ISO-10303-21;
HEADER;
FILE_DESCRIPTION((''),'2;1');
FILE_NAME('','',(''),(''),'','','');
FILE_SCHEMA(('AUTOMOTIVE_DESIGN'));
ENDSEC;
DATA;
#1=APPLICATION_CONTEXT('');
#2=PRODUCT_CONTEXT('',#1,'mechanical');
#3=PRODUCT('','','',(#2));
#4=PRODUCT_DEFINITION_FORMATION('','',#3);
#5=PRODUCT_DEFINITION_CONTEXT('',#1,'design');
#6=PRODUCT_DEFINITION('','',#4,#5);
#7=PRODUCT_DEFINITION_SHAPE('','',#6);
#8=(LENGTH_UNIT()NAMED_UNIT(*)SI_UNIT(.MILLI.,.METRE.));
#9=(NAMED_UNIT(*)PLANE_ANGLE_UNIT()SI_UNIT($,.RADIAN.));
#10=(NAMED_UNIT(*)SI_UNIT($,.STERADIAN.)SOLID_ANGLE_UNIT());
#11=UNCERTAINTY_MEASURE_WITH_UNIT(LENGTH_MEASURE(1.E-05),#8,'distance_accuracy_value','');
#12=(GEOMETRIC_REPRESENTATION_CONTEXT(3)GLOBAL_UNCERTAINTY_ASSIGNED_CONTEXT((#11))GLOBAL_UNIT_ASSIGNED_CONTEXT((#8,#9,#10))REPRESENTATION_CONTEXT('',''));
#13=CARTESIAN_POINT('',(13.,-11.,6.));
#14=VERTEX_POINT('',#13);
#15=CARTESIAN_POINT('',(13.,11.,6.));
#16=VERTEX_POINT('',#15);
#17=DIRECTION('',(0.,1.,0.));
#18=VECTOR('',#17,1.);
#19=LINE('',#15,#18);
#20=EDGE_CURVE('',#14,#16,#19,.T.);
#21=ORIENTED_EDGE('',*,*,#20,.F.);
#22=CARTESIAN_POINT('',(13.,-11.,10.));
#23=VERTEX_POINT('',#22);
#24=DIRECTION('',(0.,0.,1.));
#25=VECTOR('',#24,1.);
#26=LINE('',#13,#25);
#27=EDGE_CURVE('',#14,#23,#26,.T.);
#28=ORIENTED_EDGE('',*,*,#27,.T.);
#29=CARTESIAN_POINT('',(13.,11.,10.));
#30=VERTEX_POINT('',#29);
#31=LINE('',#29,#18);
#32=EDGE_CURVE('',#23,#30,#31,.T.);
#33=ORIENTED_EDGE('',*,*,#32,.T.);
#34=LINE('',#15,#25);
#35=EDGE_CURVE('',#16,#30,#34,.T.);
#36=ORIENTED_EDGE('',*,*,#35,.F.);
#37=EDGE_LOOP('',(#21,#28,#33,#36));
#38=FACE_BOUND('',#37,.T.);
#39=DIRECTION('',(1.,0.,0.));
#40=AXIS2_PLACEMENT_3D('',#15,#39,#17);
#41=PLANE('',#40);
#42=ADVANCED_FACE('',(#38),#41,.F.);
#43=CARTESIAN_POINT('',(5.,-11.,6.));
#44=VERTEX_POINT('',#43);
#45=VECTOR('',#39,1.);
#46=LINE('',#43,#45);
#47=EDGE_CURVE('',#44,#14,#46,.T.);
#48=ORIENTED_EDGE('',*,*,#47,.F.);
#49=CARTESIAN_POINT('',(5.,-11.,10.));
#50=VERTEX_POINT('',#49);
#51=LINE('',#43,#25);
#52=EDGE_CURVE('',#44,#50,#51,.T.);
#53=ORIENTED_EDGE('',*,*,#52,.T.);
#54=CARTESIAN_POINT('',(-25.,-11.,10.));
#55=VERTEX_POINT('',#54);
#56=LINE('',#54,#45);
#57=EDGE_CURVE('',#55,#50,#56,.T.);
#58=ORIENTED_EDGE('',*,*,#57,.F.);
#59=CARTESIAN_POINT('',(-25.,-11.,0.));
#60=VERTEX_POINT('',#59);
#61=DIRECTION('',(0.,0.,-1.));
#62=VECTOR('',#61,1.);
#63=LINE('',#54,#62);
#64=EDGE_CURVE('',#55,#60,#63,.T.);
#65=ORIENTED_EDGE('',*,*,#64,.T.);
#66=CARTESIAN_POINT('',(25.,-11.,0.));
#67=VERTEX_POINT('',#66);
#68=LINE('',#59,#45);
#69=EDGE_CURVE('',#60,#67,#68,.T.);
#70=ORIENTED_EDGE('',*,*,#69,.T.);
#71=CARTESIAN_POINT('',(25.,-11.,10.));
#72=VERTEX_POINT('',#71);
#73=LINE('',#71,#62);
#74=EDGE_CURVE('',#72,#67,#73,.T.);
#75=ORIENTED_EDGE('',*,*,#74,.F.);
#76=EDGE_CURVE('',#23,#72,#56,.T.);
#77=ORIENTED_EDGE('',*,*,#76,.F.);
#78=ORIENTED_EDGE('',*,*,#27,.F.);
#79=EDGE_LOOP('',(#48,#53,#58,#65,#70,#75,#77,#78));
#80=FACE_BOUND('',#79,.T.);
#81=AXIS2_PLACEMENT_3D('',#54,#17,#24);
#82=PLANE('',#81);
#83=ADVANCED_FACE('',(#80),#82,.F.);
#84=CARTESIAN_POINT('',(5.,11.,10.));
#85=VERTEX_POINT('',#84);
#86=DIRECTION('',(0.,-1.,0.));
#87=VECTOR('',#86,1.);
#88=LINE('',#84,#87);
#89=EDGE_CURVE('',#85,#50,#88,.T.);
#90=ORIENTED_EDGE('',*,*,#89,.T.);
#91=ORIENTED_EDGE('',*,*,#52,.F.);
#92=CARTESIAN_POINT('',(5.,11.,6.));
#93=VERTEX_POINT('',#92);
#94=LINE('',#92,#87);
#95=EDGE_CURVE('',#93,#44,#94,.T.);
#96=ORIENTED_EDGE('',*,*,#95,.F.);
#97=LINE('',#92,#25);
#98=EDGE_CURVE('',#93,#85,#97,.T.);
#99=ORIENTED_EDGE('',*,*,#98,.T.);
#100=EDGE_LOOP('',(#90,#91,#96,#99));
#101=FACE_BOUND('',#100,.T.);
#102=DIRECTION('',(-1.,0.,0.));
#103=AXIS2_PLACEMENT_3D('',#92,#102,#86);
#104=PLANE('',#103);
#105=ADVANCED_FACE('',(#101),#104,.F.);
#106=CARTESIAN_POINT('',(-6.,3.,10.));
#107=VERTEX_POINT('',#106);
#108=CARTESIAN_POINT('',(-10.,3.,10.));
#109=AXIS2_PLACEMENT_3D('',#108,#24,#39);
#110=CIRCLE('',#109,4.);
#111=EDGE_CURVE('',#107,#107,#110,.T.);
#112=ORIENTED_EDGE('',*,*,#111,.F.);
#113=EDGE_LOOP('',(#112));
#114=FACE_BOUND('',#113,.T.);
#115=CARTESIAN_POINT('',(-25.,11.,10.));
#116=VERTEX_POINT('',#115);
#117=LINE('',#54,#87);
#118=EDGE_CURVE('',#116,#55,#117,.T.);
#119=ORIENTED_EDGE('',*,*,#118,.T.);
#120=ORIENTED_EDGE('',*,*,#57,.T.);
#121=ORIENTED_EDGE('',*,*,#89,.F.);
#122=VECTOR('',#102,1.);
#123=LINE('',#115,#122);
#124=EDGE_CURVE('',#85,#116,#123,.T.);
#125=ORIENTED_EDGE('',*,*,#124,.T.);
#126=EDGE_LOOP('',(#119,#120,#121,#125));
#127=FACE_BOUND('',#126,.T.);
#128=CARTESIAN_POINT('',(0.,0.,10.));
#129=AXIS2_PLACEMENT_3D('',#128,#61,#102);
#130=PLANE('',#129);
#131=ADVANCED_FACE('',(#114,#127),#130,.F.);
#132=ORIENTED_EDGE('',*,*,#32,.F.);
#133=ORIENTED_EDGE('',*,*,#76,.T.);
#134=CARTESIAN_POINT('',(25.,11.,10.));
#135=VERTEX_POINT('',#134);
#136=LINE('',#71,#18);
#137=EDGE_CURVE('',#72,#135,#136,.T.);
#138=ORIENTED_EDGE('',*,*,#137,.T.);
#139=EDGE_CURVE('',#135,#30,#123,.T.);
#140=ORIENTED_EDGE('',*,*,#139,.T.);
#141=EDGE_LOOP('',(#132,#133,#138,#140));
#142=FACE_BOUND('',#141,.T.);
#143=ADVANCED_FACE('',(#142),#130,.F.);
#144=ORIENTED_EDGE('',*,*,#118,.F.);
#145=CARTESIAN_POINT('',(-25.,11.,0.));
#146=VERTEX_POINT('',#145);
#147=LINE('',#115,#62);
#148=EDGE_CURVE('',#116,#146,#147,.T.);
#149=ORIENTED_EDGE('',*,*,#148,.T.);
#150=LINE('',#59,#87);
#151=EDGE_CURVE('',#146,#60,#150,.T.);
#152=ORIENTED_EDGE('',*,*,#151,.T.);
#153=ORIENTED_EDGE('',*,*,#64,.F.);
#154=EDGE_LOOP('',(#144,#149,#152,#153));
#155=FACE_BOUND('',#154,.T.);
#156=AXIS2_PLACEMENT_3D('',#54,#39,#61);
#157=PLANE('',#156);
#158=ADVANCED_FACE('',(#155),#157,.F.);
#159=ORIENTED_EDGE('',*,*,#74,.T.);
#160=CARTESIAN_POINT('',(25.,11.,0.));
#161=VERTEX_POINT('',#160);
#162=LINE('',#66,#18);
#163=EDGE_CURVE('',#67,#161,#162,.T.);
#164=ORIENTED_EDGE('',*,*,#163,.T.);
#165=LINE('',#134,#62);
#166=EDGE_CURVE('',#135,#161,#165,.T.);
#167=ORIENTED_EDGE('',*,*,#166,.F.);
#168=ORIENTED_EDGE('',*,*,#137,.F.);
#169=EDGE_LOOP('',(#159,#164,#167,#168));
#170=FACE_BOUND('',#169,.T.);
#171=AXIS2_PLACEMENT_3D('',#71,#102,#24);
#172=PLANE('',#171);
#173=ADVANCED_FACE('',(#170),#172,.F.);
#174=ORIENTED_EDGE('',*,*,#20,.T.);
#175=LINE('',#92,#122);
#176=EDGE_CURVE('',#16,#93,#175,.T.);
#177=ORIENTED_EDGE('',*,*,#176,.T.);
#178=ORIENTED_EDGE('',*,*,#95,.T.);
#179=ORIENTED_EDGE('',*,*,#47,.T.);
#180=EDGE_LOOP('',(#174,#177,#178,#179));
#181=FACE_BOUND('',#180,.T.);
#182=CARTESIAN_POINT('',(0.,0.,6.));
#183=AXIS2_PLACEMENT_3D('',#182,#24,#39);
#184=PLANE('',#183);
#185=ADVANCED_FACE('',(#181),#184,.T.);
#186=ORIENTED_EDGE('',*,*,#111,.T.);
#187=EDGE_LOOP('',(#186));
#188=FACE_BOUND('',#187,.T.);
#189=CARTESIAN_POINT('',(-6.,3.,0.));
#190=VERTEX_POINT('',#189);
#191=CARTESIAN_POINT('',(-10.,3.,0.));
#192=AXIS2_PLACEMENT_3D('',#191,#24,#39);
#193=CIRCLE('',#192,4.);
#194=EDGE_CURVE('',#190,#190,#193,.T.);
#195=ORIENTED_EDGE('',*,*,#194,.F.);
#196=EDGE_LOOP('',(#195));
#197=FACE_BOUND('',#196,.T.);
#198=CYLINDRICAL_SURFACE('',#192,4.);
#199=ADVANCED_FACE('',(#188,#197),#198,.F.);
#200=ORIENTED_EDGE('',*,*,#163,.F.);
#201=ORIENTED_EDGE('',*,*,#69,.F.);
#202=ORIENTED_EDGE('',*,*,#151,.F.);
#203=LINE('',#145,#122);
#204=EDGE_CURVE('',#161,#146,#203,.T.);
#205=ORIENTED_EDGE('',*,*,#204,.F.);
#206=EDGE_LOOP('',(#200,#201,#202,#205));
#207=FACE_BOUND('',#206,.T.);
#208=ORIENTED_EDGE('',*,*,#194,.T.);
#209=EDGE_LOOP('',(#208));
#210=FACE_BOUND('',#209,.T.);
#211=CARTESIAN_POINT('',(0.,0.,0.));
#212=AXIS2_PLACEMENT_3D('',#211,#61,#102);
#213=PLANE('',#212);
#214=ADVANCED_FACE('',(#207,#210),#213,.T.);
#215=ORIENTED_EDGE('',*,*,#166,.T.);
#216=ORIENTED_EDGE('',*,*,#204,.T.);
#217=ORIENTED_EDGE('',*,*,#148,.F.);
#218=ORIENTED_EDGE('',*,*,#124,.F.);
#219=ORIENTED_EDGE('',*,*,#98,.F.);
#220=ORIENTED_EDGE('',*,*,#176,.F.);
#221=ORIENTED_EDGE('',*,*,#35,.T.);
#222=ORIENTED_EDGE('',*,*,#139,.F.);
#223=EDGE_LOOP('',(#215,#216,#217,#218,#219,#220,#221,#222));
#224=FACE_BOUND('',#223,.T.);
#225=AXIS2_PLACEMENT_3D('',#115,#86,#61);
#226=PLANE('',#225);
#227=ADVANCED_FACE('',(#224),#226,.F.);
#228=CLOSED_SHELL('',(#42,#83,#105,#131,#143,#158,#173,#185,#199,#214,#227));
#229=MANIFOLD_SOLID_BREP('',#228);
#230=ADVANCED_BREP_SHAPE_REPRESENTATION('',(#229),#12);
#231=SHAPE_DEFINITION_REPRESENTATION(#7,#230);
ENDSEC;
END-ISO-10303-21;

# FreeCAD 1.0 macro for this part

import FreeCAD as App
import Part
import Sketcher

V = App.Vector

doc = App.newDocument("Part")
params = doc.addObject("Spreadsheet::Sheet", "Params")
for row, (alias, value) in enumerate([
    ("sketch1_width", "50 mm"),
    ("sketch1_height", "22 mm"),
    ("pad1_length", "10 mm"),
    ("sketch2_diameter", "8 mm"),
    ("sketch3_width", "8 mm"),
    ("sketch3_height", "22 mm"),
    ("pocket2_length", "4 mm"),
], start=1):
    params.set(f"A{row}", alias)
    params.set(f"B{row}", "=" + value)
    params.setAlias(f"B{row}", alias)

body = doc.addObject("PartDesign::Body", "Body")

# Sketch on XY plane
sketch1 = body.newObject("Sketcher::SketchObject", "Sketch")
sketch1.AttachmentSupport = (doc.getObject("XY_Plane"), [""])
sketch1.MapMode = "FlatFace"
sketch1.addGeometry([
    Part.LineSegment(V(-25, 11, 0), V(-25, -11, 0)),
    Part.LineSegment(V(-25, -11, 0), V(25, -11, 0)),
    Part.LineSegment(V(25, -11, 0), V(25, 11, 0)),
    Part.LineSegment(V(25, 11, 0), V(-25, 11, 0)),
], False)
sketch1.addConstraint([
    Sketcher.Constraint("Coincident", 0, 2, 1, 1),
    Sketcher.Constraint("Coincident", 1, 2, 2, 1),
    Sketcher.Constraint("Coincident", 2, 2, 3, 1),
    Sketcher.Constraint("Coincident", 3, 2, 0, 1),
    Sketcher.Constraint("Vertical", 0),
    Sketcher.Constraint("Horizontal", 1),
    Sketcher.Constraint("Vertical", 2),
    Sketcher.Constraint("Horizontal", 3),
    Sketcher.Constraint("Symmetric", 0, 2, 2, 2, -1, 1),
    Sketcher.Constraint("DistanceX", 1, 1, 1, 2, 50.0),
    Sketcher.Constraint("DistanceY", 0, 2, 0, 1, 22.0),
])
sketch1.setExpression("Constraints[9]", "Params.sketch1_width")
sketch1.setExpression("Constraints[10]", "Params.sketch1_height")
pad1 = body.newObject("PartDesign::Pad", "Pad")
pad1.Profile = sketch1
pad1.setExpression("Length", "Params.pad1_length")

# Sketch on XY plane
sketch2 = body.newObject("Sketcher::SketchObject", "Sketch001")
sketch2.AttachmentSupport = (doc.getObject("XY_Plane"), [""])
sketch2.MapMode = "FlatFace"
sketch2.AttachmentOffset = App.Placement(V(0, 0, 10), App.Rotation())
sketch2.addGeometry(Part.Circle(V(-10, 3, 0), V(0, 0, 1), 4), False)
sketch2.addConstraint([
    Sketcher.Constraint("Diameter", 0, 8.0),
    Sketcher.Constraint("DistanceX", 0, 3, -1, 1, 10.0),
    Sketcher.Constraint("DistanceY", -1, 1, 0, 3, 3.0),
])
sketch2.setExpression("Constraints[0]", "Params.sketch2_diameter")
pocket1 = body.newObject("PartDesign::Pocket", "Pocket")
pocket1.Profile = sketch2
pocket1.Type = "ThroughAll"

# Sketch on XY plane
sketch3 = body.newObject("Sketcher::SketchObject", "Sketch002")
sketch3.AttachmentSupport = (doc.getObject("XY_Plane"), [""])
sketch3.MapMode = "FlatFace"
sketch3.AttachmentOffset = App.Placement(V(0, 0, 10), App.Rotation())
sketch3.addGeometry([
    Part.LineSegment(V(5, 11, 0), V(5, -11, 0)),
    Part.LineSegment(V(5, -11, 0), V(13, -11, 0)),
    Part.LineSegment(V(13, -11, 0), V(13, 11, 0)),
    Part.LineSegment(V(13, 11, 0), V(5, 11, 0)),
], False)
sketch3.addConstraint([
    Sketcher.Constraint("Coincident", 0, 2, 1, 1),
    Sketcher.Constraint("Coincident", 1, 2, 2, 1),
    Sketcher.Constraint("Coincident", 2, 2, 3, 1),
    Sketcher.Constraint("Coincident", 3, 2, 0, 1),
    Sketcher.Constraint("Vertical", 0),
    Sketcher.Constraint("Horizontal", 1),
    Sketcher.Constraint("Vertical", 2),
    Sketcher.Constraint("Horizontal", 3),
    Sketcher.Constraint("DistanceX", 1, 1, 1, 2, 8.0),
    Sketcher.Constraint("DistanceY", 0, 2, 0, 1, 22.0),
    Sketcher.Constraint("DistanceX", -1, 1, 0, 2, 5.0),
    Sketcher.Constraint("DistanceY", 0, 2, -1, 1, 11.0),
])
sketch3.setExpression("Constraints[8]", "Params.sketch3_width")
sketch3.setExpression("Constraints[9]", "Params.sketch3_height")
pocket2 = body.newObject("PartDesign::Pocket", "Pocket001")
pocket2.Profile = sketch3
pocket2.setExpression("Length", "Params.pocket2_length")

doc.recompute()
